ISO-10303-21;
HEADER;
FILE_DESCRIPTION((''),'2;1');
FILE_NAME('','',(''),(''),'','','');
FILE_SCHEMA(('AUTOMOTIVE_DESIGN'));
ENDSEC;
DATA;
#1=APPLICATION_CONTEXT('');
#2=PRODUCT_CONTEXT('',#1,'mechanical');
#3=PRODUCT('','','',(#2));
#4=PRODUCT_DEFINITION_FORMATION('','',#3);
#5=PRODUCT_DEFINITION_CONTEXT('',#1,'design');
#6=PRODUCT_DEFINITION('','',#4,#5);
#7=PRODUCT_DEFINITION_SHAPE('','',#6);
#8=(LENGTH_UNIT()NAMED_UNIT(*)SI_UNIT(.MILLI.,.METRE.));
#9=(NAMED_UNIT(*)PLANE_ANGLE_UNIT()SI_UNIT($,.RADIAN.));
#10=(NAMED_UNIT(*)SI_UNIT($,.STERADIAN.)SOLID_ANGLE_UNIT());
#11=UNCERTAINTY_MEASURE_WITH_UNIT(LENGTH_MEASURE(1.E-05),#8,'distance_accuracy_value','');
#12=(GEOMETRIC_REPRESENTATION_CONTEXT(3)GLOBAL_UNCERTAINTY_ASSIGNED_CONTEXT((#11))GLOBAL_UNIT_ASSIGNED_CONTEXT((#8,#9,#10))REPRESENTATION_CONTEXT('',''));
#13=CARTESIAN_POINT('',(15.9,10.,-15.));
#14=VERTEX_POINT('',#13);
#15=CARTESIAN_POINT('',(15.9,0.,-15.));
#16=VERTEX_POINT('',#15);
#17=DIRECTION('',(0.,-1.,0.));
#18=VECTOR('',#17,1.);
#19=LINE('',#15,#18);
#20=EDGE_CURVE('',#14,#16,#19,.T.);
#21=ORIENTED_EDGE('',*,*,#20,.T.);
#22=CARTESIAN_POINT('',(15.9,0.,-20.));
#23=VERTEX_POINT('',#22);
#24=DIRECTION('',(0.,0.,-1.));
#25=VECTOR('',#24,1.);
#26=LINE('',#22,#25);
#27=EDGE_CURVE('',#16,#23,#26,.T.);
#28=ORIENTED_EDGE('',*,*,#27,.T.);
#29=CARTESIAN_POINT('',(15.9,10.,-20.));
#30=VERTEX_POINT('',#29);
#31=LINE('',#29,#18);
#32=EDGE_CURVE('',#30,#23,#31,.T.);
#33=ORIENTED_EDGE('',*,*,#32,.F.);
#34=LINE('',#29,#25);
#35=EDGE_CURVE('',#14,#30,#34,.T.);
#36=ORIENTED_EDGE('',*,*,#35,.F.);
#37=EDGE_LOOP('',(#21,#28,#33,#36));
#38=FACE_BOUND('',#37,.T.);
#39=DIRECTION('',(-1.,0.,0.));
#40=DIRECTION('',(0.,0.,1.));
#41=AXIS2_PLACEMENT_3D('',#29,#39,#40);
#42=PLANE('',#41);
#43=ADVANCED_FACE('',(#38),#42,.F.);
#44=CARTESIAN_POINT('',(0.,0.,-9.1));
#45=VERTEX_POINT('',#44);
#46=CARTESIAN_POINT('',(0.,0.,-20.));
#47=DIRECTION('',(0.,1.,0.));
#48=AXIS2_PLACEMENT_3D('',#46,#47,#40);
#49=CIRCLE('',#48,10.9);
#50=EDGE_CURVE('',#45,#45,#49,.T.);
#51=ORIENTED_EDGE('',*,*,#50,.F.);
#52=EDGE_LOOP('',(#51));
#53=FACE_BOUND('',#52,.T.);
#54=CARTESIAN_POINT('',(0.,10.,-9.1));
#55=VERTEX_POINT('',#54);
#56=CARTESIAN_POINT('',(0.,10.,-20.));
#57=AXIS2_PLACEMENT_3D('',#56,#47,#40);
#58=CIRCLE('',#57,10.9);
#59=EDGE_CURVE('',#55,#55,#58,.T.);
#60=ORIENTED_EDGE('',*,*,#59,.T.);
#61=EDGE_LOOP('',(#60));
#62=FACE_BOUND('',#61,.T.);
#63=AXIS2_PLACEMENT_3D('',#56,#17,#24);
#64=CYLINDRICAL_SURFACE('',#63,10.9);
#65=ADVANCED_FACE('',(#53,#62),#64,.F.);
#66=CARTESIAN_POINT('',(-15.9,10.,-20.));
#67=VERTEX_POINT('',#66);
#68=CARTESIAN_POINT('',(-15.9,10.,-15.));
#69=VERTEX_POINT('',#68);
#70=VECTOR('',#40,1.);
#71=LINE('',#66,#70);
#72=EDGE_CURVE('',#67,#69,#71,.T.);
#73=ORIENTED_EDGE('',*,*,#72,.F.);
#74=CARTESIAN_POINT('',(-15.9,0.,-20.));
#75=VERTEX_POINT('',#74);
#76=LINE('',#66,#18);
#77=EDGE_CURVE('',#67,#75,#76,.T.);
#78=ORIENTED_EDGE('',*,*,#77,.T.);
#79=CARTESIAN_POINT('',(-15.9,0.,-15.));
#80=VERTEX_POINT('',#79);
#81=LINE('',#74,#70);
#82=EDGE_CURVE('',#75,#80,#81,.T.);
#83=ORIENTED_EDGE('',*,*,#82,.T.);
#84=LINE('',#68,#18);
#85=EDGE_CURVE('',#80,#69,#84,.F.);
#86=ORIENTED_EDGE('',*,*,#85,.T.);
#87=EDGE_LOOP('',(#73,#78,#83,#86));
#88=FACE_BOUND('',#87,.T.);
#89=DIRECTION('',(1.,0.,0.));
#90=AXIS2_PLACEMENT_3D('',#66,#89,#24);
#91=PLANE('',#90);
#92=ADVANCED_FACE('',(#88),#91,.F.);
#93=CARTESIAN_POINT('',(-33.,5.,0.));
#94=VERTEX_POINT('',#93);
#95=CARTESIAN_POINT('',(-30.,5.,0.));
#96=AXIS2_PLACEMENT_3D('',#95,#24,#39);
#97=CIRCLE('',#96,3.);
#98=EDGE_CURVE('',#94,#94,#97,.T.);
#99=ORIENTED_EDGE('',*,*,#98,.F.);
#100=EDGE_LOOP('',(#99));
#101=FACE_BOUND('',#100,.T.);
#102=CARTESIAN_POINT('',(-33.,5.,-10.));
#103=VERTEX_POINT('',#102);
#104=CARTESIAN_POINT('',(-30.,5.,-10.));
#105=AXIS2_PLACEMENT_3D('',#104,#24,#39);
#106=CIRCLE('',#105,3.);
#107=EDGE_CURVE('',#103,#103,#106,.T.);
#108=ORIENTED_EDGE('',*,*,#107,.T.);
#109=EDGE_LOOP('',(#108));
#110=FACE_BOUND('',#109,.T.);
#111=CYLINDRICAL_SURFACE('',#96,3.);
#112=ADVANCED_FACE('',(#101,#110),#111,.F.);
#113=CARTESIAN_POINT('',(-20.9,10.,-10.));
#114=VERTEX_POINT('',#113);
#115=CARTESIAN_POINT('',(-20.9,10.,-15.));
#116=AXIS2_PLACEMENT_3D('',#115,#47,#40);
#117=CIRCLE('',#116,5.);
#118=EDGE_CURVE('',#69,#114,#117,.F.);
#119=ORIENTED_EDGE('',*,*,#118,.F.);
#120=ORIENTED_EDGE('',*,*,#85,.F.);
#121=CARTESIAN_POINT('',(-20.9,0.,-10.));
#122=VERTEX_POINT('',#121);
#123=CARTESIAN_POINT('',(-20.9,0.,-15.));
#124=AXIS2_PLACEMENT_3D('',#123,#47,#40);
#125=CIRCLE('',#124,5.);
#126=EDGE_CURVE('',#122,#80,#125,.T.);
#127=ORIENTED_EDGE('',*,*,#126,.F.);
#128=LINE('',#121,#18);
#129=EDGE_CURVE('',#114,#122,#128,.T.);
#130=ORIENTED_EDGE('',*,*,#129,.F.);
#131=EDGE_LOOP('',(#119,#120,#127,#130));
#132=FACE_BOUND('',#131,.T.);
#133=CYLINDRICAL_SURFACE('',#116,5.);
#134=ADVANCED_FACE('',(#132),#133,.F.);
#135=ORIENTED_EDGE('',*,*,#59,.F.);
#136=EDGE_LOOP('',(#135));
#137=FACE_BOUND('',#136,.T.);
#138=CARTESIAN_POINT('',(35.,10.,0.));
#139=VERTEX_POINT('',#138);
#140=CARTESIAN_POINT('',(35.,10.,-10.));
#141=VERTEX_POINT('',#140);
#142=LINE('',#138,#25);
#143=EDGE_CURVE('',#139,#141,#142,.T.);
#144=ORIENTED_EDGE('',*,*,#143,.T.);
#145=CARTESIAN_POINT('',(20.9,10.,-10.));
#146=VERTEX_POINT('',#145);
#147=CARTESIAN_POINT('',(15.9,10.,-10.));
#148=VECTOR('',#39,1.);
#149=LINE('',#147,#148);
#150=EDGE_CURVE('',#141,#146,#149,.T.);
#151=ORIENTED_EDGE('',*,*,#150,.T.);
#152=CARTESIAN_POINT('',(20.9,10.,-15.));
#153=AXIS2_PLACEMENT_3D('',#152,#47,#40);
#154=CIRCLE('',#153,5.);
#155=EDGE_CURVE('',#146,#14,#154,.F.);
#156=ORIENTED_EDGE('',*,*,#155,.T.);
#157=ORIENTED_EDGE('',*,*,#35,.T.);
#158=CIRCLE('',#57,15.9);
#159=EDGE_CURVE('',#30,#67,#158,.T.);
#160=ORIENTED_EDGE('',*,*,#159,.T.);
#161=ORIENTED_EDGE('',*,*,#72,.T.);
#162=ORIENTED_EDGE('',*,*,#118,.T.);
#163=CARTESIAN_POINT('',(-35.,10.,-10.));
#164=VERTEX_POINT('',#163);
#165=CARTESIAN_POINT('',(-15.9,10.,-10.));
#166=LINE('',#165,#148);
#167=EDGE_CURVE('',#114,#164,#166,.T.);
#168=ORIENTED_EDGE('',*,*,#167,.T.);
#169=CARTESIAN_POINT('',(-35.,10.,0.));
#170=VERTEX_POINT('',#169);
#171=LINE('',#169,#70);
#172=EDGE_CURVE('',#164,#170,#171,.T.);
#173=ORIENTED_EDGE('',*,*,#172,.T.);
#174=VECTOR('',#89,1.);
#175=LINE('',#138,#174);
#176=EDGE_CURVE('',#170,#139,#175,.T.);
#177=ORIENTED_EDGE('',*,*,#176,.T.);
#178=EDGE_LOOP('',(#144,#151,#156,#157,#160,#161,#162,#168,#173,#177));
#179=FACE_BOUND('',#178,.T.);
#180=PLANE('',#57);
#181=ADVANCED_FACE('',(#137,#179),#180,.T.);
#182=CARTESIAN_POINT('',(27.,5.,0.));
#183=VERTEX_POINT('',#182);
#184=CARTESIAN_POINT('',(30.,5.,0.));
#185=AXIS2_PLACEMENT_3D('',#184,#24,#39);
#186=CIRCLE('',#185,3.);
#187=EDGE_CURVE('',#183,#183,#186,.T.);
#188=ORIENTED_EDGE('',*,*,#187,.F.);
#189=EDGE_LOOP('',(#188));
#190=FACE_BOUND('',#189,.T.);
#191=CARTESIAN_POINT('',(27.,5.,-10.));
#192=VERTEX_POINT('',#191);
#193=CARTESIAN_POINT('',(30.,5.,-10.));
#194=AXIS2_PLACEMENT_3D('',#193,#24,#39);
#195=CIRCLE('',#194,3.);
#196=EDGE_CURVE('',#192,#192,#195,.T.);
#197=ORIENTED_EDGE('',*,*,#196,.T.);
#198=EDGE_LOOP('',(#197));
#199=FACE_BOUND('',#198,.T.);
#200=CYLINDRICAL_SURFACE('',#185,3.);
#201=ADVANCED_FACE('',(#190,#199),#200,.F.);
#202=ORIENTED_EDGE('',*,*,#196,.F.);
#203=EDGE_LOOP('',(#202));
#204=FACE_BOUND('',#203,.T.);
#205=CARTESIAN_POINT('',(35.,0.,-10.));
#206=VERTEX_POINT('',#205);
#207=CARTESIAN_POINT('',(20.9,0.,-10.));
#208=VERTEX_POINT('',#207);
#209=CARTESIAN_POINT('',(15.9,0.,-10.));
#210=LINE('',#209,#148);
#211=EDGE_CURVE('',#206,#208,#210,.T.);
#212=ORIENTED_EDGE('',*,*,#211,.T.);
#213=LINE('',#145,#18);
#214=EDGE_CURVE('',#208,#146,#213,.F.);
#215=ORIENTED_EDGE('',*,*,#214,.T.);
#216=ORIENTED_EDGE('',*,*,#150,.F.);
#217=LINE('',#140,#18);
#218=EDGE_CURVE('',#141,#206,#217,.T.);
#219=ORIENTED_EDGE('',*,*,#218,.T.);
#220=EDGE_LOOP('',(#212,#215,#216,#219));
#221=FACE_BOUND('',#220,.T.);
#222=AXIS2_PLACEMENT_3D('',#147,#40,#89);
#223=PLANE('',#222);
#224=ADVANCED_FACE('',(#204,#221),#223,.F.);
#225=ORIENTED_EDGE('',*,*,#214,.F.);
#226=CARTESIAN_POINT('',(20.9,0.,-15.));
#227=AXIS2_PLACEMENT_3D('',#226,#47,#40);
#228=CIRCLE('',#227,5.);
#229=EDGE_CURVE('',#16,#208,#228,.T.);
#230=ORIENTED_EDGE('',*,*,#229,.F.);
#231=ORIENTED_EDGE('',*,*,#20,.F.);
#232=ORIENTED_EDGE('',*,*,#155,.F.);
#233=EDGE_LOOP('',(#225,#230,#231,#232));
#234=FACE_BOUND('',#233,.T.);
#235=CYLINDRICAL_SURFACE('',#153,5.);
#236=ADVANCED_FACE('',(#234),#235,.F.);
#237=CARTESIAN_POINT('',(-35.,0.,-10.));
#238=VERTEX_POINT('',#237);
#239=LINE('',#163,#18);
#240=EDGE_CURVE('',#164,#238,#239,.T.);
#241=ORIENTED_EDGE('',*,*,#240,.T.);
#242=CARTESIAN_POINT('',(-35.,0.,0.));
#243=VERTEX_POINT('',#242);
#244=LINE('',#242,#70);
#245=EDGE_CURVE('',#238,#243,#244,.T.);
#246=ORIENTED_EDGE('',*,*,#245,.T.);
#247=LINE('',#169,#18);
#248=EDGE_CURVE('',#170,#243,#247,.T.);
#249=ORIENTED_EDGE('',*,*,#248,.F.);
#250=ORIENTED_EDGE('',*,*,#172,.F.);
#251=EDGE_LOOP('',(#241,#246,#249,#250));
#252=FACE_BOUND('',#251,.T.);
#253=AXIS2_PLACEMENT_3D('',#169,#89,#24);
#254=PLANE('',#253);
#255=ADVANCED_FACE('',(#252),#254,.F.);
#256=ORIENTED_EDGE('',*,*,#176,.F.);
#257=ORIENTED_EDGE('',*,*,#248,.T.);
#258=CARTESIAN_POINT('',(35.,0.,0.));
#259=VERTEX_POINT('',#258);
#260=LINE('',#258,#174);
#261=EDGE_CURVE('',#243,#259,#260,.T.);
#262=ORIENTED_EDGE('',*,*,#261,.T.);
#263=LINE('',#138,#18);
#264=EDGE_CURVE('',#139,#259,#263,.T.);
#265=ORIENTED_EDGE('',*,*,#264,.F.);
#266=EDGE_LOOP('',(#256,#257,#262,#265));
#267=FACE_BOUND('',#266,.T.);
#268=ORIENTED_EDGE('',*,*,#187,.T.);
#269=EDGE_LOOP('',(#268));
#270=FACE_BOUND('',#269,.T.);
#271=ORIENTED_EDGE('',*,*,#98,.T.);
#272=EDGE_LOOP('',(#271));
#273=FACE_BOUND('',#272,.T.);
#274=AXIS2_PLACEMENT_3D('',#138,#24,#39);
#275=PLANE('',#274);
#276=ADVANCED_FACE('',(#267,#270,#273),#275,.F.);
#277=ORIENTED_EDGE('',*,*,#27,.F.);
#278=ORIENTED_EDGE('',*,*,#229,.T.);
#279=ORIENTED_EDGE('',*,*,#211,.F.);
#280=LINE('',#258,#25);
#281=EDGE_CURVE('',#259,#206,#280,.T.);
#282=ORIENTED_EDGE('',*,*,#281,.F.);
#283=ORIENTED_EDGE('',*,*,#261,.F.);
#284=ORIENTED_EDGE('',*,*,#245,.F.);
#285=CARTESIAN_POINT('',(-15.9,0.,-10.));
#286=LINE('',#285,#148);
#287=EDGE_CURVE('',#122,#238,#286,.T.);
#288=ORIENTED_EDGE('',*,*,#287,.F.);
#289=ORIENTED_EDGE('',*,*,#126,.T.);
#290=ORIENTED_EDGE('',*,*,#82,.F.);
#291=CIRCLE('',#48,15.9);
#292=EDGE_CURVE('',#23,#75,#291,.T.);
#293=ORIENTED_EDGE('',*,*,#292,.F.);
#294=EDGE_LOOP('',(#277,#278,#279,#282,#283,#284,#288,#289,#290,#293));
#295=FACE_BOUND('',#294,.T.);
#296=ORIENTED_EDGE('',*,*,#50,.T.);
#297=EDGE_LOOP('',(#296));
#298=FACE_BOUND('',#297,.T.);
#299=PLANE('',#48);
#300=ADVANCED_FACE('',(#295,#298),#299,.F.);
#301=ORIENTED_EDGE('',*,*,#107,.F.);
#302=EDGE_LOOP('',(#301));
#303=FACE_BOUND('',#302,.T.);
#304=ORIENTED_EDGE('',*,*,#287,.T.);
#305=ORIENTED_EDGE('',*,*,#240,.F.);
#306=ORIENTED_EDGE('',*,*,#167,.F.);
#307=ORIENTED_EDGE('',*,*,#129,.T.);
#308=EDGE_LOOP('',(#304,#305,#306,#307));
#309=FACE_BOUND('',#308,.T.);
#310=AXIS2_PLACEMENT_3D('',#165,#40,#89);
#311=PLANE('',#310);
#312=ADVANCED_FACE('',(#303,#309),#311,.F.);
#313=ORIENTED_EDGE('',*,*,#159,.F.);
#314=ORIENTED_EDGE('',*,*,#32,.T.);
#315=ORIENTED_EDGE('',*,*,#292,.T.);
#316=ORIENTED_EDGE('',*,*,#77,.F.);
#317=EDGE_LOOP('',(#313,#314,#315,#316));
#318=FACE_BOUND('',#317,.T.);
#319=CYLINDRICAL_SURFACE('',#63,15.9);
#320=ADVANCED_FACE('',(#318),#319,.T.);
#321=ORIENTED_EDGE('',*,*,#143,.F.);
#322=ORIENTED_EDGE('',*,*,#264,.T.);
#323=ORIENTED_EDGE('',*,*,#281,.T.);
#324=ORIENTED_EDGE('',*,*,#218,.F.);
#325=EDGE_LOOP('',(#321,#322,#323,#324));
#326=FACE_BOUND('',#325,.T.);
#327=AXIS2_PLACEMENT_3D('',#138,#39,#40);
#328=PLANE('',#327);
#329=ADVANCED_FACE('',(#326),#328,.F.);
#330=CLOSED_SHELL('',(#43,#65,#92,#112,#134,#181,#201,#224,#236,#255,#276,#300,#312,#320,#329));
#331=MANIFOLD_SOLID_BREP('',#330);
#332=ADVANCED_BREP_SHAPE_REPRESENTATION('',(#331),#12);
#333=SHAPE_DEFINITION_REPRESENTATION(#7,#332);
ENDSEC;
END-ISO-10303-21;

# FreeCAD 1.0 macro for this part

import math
import FreeCAD as App
import Part
import Sketcher

V = App.Vector
Q = App.Units.Quantity


def edges_at(feature, points):
    """Names of the edges that pass closest to the given points."""
    edges = feature.Shape.Edges
    near = lambda p: min(range(len(edges)), key=lambda i: edges[i].distToShape(Part.Vertex(*p))[0])
    return sorted({f"Edge{near(p) + 1}" for p in points})

doc = App.newDocument("Part")
params = doc.addObject("Spreadsheet::Sheet", "Params")
for row, (alias, value) in enumerate([
    ("sketch1_diameter", "21.8 mm"),
    ("sketch1_radius", "15.9 mm"),
    ("sketch1_width", "70 mm"),
    ("sketch1_height", "10 mm"),
    ("pad1_length", "10 mm"),
    ("fillet_radius", "5 mm"),
    ("sketch2_diameter", "6 mm"),
], start=1):
    params.set(f"A{row}", alias)
    params.set(f"B{row}", "=" + value)
    params.setAlias(f"B{row}", alias)

body = doc.addObject("PartDesign::Body", "Body")

# Sketch on XZ plane
sketch1 = doc.addObject("Sketcher::SketchObject", "Sketch")
body.addObject(sketch1)
sketch1.AttachmentSupport = (doc.XZ_Plane, [""])
sketch1.MapMode = "FlatFace"
sketch1.addGeometry([
    Part.LineSegment(V(-35, 0, 0), V(35, 0, 0)),  # 0
    Part.LineSegment(V(35, 0, 0), V(35, -10, 0)),  # 1
    Part.LineSegment(V(35, -10, 0), V(15.9, -10, 0)),  # 2
    Part.LineSegment(V(15.9, -10, 0), V(15.9, -20, 0)),  # 3
    Part.ArcOfCircle(Part.Circle(V(0, -20, 0), V(0, 0, 1), 15.9), math.radians(180), math.radians(360)),  # 4
    Part.LineSegment(V(-15.9, -20, 0), V(-15.9, -10, 0)),  # 5
    Part.LineSegment(V(-15.9, -10, 0), V(-35, -10, 0)),  # 6
    Part.LineSegment(V(-35, -10, 0), V(-35, 0, 0)),  # 7
    Part.Circle(V(0, -20, 0), V(0, 0, 1), 10.9),  # 8
], False)
sketch1.addConstraint([
    Sketcher.Constraint("Coincident", 0, 2, 1, 1),
    Sketcher.Constraint("Coincident", 1, 2, 2, 1),
    Sketcher.Constraint("Coincident", 2, 2, 3, 1),
    Sketcher.Constraint("Tangent", 3, 2, 4, 2),
    Sketcher.Constraint("Tangent", 4, 1, 5, 1),
    Sketcher.Constraint("Coincident", 5, 2, 6, 1),
    Sketcher.Constraint("Coincident", 6, 2, 7, 1),
    Sketcher.Constraint("Coincident", 7, 2, 0, 1),
    Sketcher.Constraint("Horizontal", 0),
    Sketcher.Constraint("Vertical", 1),
    Sketcher.Constraint("Horizontal", 2),
    Sketcher.Constraint("Vertical", 3),
    Sketcher.Constraint("Vertical", 5),
    Sketcher.Constraint("Horizontal", 6),
    Sketcher.Constraint("Vertical", 7),
    Sketcher.Constraint("Coincident", 8, 3, 4, 3),
    Sketcher.Constraint("Symmetric", 0, 2, 7, 2, -1, 1),
    Sketcher.Constraint("Symmetric", 2, 2, 5, 2, -2),
    Sketcher.Constraint("Equal", 1, 3),
    Sketcher.Constraint("Diameter", 8, Q("21.8 mm")),
    Sketcher.Constraint("Radius", 4, Q("15.9 mm")),
    Sketcher.Constraint("DistanceX", 0, 1, 0, 2, Q("70 mm")),
    Sketcher.Constraint("DistanceY", 1, 2, 1, 1, Q("10 mm")),
])
sketch1.setExpression("Constraints[19]", "Params.sketch1_diameter")
sketch1.setExpression("Constraints[20]", "Params.sketch1_radius")
sketch1.setExpression("Constraints[21]", "Params.sketch1_width")
sketch1.setExpression("Constraints[22]", "Params.sketch1_height")
pad1 = doc.addObject("PartDesign::Pad", "Pad")
body.addObject(pad1)
pad1.Profile = sketch1
pad1.setExpression("Length", "Params.pad1_length")
pad1.Reversed = True
doc.recompute()

fillet = doc.addObject("PartDesign::Fillet", "Fillet")
body.addObject(fillet)
fillet.Base = (pad1, edges_at(pad1, [(15.9, 5, -10), (-15.9, 5, -10)]))
fillet.setExpression("Radius", "Params.fillet_radius")

# Sketch on XY plane
sketch2 = doc.addObject("Sketcher::SketchObject", "Sketch001")
body.addObject(sketch2)
sketch2.AttachmentSupport = (doc.XY_Plane, [""])
sketch2.MapMode = "FlatFace"
sketch2.AttachmentOffset = App.Placement(V(0, 0, -10), App.Rotation())
sketch2.addGeometry([
    Part.Circle(V(30, 5, 0), V(0, 0, 1), 3),
    Part.Circle(V(-30, 5, 0), V(0, 0, 1), 3),
], False)
sketch2.addConstraint([
    Sketcher.Constraint("Equal", 0, 1),
    Sketcher.Constraint("Symmetric", 0, 3, 1, 3, -2),
    Sketcher.Constraint("Diameter", 0, Q("6 mm")),
    Sketcher.Constraint("DistanceX", -1, 1, 0, 3, Q("30 mm")),
    Sketcher.Constraint("DistanceY", -1, 1, 0, 3, Q("5 mm")),
])
sketch2.setExpression("Constraints[2]", "Params.sketch2_diameter")
pocket1 = doc.addObject("PartDesign::Pocket", "Pocket")
body.addObject(pocket1)
pocket1.Profile = sketch2
pocket1.Type = "ThroughAll"
pocket1.Reversed = True

doc.recompute()
